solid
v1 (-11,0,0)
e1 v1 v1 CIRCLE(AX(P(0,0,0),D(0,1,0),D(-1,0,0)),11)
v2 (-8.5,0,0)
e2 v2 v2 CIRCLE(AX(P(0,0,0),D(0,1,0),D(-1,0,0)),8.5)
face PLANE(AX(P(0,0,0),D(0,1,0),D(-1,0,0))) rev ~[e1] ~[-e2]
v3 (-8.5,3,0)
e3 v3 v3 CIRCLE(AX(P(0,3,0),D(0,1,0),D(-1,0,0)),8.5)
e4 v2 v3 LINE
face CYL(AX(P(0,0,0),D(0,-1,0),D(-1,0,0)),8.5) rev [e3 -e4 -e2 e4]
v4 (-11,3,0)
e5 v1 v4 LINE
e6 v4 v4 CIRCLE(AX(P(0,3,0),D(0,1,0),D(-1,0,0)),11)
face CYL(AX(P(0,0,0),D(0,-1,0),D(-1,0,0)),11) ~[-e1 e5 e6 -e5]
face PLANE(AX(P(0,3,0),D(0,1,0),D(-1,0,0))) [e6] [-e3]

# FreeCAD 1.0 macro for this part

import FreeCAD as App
import Part
import Sketcher

doc = App.newDocument("Part")
body = doc.addObject("PartDesign::Body", "Body")

# Sketch on XZ plane
sketch1 = body.newObject("Sketcher::SketchObject", "Sketch")
sketch1.AttachmentSupport = (doc.getObject("XZ_Plane"), [""])
sketch1.MapMode = "FlatFace"
sketch1.addGeometry([
    Part.Circle(App.Vector(0, 0, 0), App.Vector(0, 0, 1), 11),
    Part.Circle(App.Vector(0, 0, 0), App.Vector(0, 0, 1), 8),
], False)
sketch1.addConstraint([
    Sketcher.Constraint("Coincident", 0, 3, -1, 1),
    Sketcher.Constraint("Coincident", 1, 3, -1, 1),
    Sketcher.Constraint("Diameter", 0, 22.0),
    Sketcher.Constraint("Diameter", 1, 17.0),
])
pad1 = body.newObject("PartDesign::Pad", "Pad")
pad1.Profile = sketch1
pad1.Length = 3
pad1.Reversed = True

doc.recompute()
